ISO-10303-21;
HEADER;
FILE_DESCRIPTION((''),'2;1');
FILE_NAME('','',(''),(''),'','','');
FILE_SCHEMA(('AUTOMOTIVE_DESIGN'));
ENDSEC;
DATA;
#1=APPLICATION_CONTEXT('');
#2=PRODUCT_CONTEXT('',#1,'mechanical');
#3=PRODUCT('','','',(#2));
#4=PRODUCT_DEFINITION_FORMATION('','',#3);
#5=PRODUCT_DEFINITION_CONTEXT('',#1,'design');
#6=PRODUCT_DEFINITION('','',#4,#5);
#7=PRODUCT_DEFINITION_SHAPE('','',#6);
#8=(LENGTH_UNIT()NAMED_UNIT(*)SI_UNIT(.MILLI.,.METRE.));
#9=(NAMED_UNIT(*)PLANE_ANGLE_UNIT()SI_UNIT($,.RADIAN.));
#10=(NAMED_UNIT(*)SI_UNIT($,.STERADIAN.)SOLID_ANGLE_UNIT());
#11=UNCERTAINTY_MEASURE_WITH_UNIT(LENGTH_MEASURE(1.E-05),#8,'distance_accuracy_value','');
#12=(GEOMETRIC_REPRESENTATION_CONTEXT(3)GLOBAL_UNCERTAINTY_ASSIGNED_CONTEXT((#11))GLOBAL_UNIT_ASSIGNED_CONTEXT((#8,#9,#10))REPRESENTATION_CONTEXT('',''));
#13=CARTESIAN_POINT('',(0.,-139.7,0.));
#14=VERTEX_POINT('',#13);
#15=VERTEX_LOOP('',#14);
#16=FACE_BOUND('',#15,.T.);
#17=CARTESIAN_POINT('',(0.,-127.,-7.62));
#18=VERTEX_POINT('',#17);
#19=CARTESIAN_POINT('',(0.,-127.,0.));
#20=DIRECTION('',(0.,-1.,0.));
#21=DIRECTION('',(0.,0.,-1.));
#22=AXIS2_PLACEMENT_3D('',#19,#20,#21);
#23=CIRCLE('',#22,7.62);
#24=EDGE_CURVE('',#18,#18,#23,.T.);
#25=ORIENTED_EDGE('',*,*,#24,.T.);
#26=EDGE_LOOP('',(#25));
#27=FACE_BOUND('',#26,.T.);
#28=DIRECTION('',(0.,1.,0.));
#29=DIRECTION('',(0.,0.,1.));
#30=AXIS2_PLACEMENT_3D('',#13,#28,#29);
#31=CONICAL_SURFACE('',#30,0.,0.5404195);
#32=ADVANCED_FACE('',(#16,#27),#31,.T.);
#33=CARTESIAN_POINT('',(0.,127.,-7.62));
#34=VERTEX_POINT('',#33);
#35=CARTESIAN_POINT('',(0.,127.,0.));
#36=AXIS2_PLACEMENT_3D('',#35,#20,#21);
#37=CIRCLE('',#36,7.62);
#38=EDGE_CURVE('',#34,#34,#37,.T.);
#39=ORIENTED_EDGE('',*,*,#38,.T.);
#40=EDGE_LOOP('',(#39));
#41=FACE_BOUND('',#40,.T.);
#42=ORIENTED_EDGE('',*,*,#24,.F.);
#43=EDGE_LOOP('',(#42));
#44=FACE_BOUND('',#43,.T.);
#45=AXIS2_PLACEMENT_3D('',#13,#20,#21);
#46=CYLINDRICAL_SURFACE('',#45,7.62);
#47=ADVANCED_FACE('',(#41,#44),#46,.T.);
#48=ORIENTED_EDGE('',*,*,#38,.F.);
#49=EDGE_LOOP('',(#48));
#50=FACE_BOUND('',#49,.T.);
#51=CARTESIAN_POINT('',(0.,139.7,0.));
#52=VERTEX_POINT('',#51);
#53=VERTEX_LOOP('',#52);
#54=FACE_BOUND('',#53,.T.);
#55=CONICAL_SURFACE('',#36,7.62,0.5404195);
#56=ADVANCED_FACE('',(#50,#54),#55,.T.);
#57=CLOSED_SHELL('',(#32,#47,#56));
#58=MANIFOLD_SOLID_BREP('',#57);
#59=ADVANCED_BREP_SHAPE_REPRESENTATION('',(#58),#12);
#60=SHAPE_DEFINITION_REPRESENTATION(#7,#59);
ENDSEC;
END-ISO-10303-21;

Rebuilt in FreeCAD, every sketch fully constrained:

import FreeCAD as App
import Part
import Sketcher

V = App.Vector
Q = App.Units.Quantity

doc = App.newDocument("Part")
params = doc.addObject("Spreadsheet::Sheet", "Params")
for row, (alias, value) in enumerate([
    ("sketch1_width", "11 in"),
    ("sketch1_width2", "10 in"),
    ("revolution_angle", "360 deg"),
], start=1):
    params.set(f"A{row}", alias)
    params.set(f"B{row}", "=" + value)
    params.setAlias(f"B{row}", alias)

body = doc.addObject("PartDesign::Body", "Body")

sketch1 = body.newObject("Sketcher::SketchObject", "Sketch")
sketch1.AttachmentSupport = (doc.getObject("YZ_Plane"), [""])
sketch1.MapMode = "FlatFace"
sketch1.addGeometry(Part.LineSegment(V(140, 0, 0), V(-140, 0, 0)), False)
sketch1.addGeometry(Part.LineSegment(V(-140, 0, 0), V(-127, -8, 0)), False)
sketch1.addGeometry(Part.LineSegment(V(-127, -8, 0), V(127, -8, 0)), False)
sketch1.addGeometry(Part.LineSegment(V(127, -8, 0), V(140, 0, 0)), False)
sketch1.addConstraint(Sketcher.Constraint("Coincident", 0, 2, 1, 1))
sketch1.addConstraint(Sketcher.Constraint("Coincident", 1, 2, 2, 1))
sketch1.addConstraint(Sketcher.Constraint("Coincident", 2, 2, 3, 1))
sketch1.addConstraint(Sketcher.Constraint("Coincident", 3, 2, 0, 1))
sketch1.addConstraint(Sketcher.Constraint("Horizontal", 0))
sketch1.addConstraint(Sketcher.Constraint("Horizontal", 2))
sketch1.addConstraint(Sketcher.Constraint("Symmetric", 0, 2, 3, 2, -1, 1))
sketch1.addConstraint(Sketcher.Constraint("Equal", 1, 3))
sketch1.addConstraint(Sketcher.Constraint("DistanceX", 0, 2, 0, 1, Q("11 in")))
sketch1.addConstraint(Sketcher.Constraint("DistanceX", 2, 1, 2, 2, Q("10 in")))
sketch1.addConstraint(Sketcher.Constraint("DistanceY", 1, 2, -1, 1, Q("0.3 in")))
sketch1.setExpression("Constraints[8]", "Params.sketch1_width")
sketch1.setExpression("Constraints[9]", "Params.sketch1_width2")
revolution = body.newObject("PartDesign::Revolution", "Revolution")
revolution.Profile = sketch1
revolution.ReferenceAxis = (sketch1, ["H_Axis"])
revolution.setExpression("Angle", "Params.revolution_angle")

doc.recompute()
